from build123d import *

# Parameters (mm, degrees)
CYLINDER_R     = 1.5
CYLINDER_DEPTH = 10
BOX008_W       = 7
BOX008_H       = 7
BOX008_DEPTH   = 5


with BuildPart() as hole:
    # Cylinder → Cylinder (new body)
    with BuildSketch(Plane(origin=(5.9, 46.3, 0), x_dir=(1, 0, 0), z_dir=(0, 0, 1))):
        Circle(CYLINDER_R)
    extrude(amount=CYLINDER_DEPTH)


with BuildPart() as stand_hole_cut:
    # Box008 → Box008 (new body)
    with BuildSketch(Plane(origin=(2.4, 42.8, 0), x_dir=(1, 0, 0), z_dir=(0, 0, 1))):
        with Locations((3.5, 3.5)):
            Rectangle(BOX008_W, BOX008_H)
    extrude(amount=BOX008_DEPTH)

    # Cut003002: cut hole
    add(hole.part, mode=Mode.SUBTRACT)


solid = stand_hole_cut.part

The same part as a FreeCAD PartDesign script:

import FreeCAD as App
import Part
import Sketcher

V = App.Vector
Q = App.Units.Quantity

doc = App.newDocument("Part")
body = doc.addObject("PartDesign::Body", "Body")

sketch1 = body.newObject("Sketcher::SketchObject", "Sketch")
sketch1.AttachmentSupport = (doc.getObject("XY_Plane"), [""])
sketch1.MapMode = "FlatFace"
sketch1.addGeometry(Part.Circle(V(5.9, 46.3, 0), V(0, 0, 1), 1.5), False)
sketch1.addConstraint([
    Sketcher.Constraint("Diameter", 0, Q("3 mm")),
    Sketcher.Constraint("DistanceX", -1, 1, 0, 3, Q("5.9 mm")),
    Sketcher.Constraint("DistanceY", -1, 1, 0, 3, Q("46.3 mm")),
])
pad1 = body.newObject("PartDesign::Pad", "Pad")
pad1.Profile = sketch1
pad1.Length = 10
body2 = doc.addObject("PartDesign::Body", "Body001")

sketch2 = body2.newObject("Sketcher::SketchObject", "Sketch001")
sketch2.AttachmentSupport = (doc.getObject("XY_Plane001"), [""])
sketch2.MapMode = "FlatFace"
sketch2.addGeometry([
    Part.LineSegment(V(2, 50, 0), V(2, 43, 0)),
    Part.LineSegment(V(2, 43, 0), V(9, 43, 0)),
    Part.LineSegment(V(9, 43, 0), V(9, 50, 0)),
    Part.LineSegment(V(9, 50, 0), V(2, 50, 0)),
], False)
sketch2.addConstraint([
    Sketcher.Constraint("Coincident", 0, 2, 1, 1),
    Sketcher.Constraint("Coincident", 1, 2, 2, 1),
    Sketcher.Constraint("Coincident", 2, 2, 3, 1),
    Sketcher.Constraint("Coincident", 3, 2, 0, 1),
    Sketcher.Constraint("Vertical", 0),
    Sketcher.Constraint("Horizontal", 1),
    Sketcher.Constraint("Vertical", 2),
    Sketcher.Constraint("Horizontal", 3),
    Sketcher.Constraint("Equal", 3, 0),
    Sketcher.Constraint("DistanceX", 1, 1, 1, 2, Q("7 mm")),
    Sketcher.Constraint("DistanceX", -1, 1, 0, 2, Q("2.4 mm")),
    Sketcher.Constraint("DistanceY", -1, 1, 0, 2, Q("42.8 mm")),
])
pad2 = body2.newObject("PartDesign::Pad", "Pad001")
pad2.Profile = sketch2
pad2.Length = 5
doc.recompute()

boolean = body2.newObject("PartDesign::Boolean", "Boolean")
boolean.Type = "Cut"
boolean.addObjects([body])

doc.recompute()
